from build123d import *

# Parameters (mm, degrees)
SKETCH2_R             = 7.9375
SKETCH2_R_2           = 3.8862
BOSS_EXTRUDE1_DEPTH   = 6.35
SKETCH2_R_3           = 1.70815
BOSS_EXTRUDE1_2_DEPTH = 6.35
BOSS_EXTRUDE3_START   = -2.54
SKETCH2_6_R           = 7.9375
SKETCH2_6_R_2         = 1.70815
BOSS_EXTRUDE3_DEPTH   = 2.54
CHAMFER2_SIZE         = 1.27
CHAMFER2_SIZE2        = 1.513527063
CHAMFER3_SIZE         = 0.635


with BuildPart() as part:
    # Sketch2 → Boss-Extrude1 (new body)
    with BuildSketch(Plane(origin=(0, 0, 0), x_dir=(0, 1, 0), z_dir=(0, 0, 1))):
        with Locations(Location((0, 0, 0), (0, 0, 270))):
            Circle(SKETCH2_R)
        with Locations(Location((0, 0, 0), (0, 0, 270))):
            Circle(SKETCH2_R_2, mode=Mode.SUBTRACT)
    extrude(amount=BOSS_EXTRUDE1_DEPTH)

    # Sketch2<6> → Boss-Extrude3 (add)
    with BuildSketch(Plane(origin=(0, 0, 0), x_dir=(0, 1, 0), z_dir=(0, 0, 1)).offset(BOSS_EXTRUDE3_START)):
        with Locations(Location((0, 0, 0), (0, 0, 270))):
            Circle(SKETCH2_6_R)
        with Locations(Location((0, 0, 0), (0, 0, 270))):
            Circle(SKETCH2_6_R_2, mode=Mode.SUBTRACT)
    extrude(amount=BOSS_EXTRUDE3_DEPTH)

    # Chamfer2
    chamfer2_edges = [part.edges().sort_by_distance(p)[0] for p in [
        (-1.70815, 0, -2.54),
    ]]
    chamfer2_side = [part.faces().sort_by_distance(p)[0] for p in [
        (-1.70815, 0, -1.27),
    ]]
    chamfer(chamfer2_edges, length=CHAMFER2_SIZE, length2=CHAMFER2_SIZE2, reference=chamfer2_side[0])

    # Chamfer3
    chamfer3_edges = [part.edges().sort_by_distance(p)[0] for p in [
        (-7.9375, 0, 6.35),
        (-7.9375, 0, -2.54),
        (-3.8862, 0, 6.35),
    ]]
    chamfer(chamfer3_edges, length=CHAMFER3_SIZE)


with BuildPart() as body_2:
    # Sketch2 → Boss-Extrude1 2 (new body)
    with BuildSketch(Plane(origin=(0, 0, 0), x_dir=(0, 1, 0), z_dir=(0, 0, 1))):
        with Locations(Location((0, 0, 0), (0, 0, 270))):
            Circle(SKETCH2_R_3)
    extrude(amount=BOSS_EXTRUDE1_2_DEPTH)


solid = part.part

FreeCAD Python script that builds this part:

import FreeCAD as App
import Part
import Sketcher
Q = App.Units.Quantity


def edges_at(feature, points):
    """Names of the edges that pass closest to the given points."""
    edges = feature.Shape.Edges
    near = lambda p: min(range(len(edges)), key=lambda i: edges[i].distToShape(Part.Vertex(*p))[0])
    return sorted({f"Edge{near(p) + 1}" for p in points})

doc = App.newDocument("Part")
params = doc.addObject("Spreadsheet::Sheet", "Params")
for row, (alias, value) in enumerate([
    ("sketch1_diameter", "0.625 in"),
    ("sketch1_diameter2", "0.306 in"),
    ("pad1_length", "0.25 in"),
    ("sketch2_diameter", "0.625 in"),
    ("pad2_length", "0.1 in"),
    ("chamfer_size", "0.05 in"),
    ("chamfer_size2", "1.513527 mm"),
    ("chamfer2_size", "0.025 in"),
    ("pad3_length", "0.25 in"),
], start=1):
    params.set(f"A{row}", alias)
    params.set(f"B{row}", "=" + value)
    params.setAlias(f"B{row}", alias)

body = doc.addObject("PartDesign::Body", "Body")

sketch1 = doc.addObject("Sketcher::SketchObject", "Sketch")
body.addObject(sketch1)
sketch1.AttachmentSupport = (doc.XY_Plane, [""])
sketch1.MapMode = "FlatFace"
sketch1.addGeometry(Part.Circle(App.Vector(0, 0, 0), App.Vector(0, 0, 1), 7.9), False)
sketch1.addGeometry(Part.Circle(App.Vector(0, 0, 0), App.Vector(0, 0, 1), 3.9), False)
sketch1.addConstraint(Sketcher.Constraint("Coincident", 0, 3, -1, 1))
sketch1.addConstraint(Sketcher.Constraint("Coincident", 1, 3, -1, 1))
sketch1.addConstraint(Sketcher.Constraint("Diameter", 0, Q("0.625 in")))
sketch1.addConstraint(Sketcher.Constraint("Diameter", 1, Q("0.306 in")))
sketch1.setExpression("Constraints[2]", "Params.sketch1_diameter")
sketch1.setExpression("Constraints[3]", "Params.sketch1_diameter2")
pad1 = doc.addObject("PartDesign::Pad", "Pad")
body.addObject(pad1)
pad1.Profile = sketch1
pad1.setExpression("Length", "Params.pad1_length")

sketch2 = doc.addObject("Sketcher::SketchObject", "Sketch001")
body.addObject(sketch2)
sketch2.AttachmentSupport = (doc.XY_Plane, [""])
sketch2.MapMode = "FlatFace"
sketch2.AttachmentOffset = App.Placement(App.Vector(0, 0, -0.1 * 25.4), App.Rotation())
sketch2.addGeometry(Part.Circle(App.Vector(0, 0, 0), App.Vector(0, 0, 1), 7.9), False)
sketch2.addGeometry(Part.Circle(App.Vector(0, 0, 0), App.Vector(0, 0, 1), 1.7), False)
sketch2.addConstraint(Sketcher.Constraint("Coincident", 0, 3, -1, 1))
sketch2.addConstraint(Sketcher.Constraint("Coincident", 1, 3, -1, 1))
sketch2.addConstraint(Sketcher.Constraint("Diameter", 0, Q("0.625 in")))
sketch2.addConstraint(Sketcher.Constraint("Diameter", 1, Q("0.1345 in")))
sketch2.setExpression("Constraints[2]", "Params.sketch2_diameter")
pad2 = doc.addObject("PartDesign::Pad", "Pad001")
body.addObject(pad2)
pad2.Profile = sketch2
pad2.setExpression("Length", "Params.pad2_length")
doc.recompute()

chamfer = doc.addObject("PartDesign::Chamfer", "Chamfer")
body.addObject(chamfer)
chamfer.Base = (pad2, edges_at(pad2, [(-1.708, 0, -2.54)]))
chamfer.ChamferType = "Two distances"
chamfer.setExpression("Size", "Params.chamfer_size")
chamfer.setExpression("Size2", "Params.chamfer_size2")
chamfer.FlipDirection = True
doc.recompute()

chamfer2 = doc.addObject("PartDesign::Chamfer", "Chamfer001")
body.addObject(chamfer2)
chamfer2.Base = (chamfer, edges_at(chamfer, [(-7.938, 0, 6.35), (-7.938, 0, -2.54), (-3.886, 0, 6.35)]))
chamfer2.setExpression("Size", "Params.chamfer2_size")
body2 = doc.addObject("PartDesign::Body", "Body001")

sketch3 = doc.addObject("Sketcher::SketchObject", "Sketch002")
body2.addObject(sketch3)
sketch3.AttachmentSupport = (doc.getObject("XY_Plane001"), [""])
sketch3.MapMode = "FlatFace"
sketch3.addGeometry(Part.Circle(App.Vector(0, 0, 0), App.Vector(0, 0, 1), 1.7), False)
sketch3.addConstraint(Sketcher.Constraint("Coincident", 0, 3, -1, 1))
sketch3.addConstraint(Sketcher.Constraint("Diameter", 0, Q("0.1345 in")))
pad3 = doc.addObject("PartDesign::Pad", "Pad002")
body2.addObject(pad3)
pad3.Profile = sketch3
pad3.setExpression("Length", "Params.pad3_length")
body2.Visibility = False

doc.recompute()
